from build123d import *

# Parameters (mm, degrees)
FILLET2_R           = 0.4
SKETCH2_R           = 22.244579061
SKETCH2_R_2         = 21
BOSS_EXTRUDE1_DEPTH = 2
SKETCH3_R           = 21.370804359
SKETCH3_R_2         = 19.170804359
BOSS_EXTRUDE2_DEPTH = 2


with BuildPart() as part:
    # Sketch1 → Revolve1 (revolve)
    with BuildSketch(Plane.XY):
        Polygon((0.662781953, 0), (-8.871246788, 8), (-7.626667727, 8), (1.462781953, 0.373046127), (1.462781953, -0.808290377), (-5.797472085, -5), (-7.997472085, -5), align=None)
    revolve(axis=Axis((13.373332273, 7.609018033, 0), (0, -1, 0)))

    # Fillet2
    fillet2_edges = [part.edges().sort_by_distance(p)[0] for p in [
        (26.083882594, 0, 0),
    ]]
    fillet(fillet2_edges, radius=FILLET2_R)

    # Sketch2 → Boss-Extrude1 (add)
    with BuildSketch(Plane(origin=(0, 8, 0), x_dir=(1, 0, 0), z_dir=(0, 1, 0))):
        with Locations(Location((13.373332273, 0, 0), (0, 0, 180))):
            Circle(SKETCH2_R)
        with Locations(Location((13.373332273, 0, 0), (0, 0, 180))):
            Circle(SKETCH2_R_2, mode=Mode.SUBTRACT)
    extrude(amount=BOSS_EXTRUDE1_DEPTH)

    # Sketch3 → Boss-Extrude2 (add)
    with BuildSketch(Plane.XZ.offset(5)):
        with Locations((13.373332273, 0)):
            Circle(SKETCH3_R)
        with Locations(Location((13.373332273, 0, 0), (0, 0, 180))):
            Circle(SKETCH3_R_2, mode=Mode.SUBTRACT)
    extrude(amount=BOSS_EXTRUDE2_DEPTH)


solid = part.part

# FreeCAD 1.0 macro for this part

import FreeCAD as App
import Part
import Sketcher
from FreeCAD import Vector
Q = App.Units.Quantity


def edges_at(feature, points):
    """Names of the edges that pass closest to the given points."""
    edges = feature.Shape.Edges
    near = lambda p: min(range(len(edges)), key=lambda i: edges[i].distToShape(Part.Vertex(*p))[0])
    return sorted({f"Edge{near(p) + 1}" for p in points})


def add_polygon(sketch, points):
    """Adds a closed chain of lines whose ends are joined by coincident constraints."""
    first, n = sketch.GeometryCount, len(points)
    for a, b in zip(points, points[1:] + points[:1]):
        sketch.addGeometry(Part.LineSegment(App.Vector(*a, 0), App.Vector(*b, 0)), False)
    for i in range(n):
        sketch.addConstraint(Sketcher.Constraint("Coincident", first + i, 2, first + (i + 1) % n, 1))

doc = App.newDocument("Part")
body = doc.addObject("PartDesign::Body", "Body")

# Sketch on XY plane
sketch1 = body.newObject("Sketcher::SketchObject", "Sketch")
sketch1.AttachmentSupport = (doc.getObject("XY_Plane"), [""])
sketch1.MapMode = "FlatFace"
add_polygon(sketch1, [(-8.9, 8), (0.7, 0), (-8, -5), (-5.8, -5), (1.5, -0.8), (1.5, 0.4), (-7.6, 8)])  # lines 0-6
sketch1.addGeometry(Part.LineSegment(Vector(13.4, 8, 0), Vector(13.4, -5, 0)), True)  # axis
sketch1.addConstraint(Sketcher.Constraint("Horizontal", 2))
sketch1.addConstraint(Sketcher.Constraint("Vertical", 4))
sketch1.addConstraint(Sketcher.Constraint("Horizontal", 6))
sketch1.addConstraint(Sketcher.Constraint("Vertical", 7))
sketch1.addConstraint(Sketcher.Constraint("PointOnObject", 0, 2, -1))
sketch1.addConstraint(Sketcher.Constraint("Parallel", 1, 3))
sketch1.addConstraint(Sketcher.Constraint("Parallel", 0, 5))
sketch1.addConstraint(Sketcher.Constraint("Horizontal", 6, 2, 7, 1))
sketch1.addConstraint(Sketcher.Constraint("Horizontal", 2, 2, 7, 2))
sketch1.addConstraint(Sketcher.Constraint("DistanceY", 7, 2, 7, 1, 13.0))
sketch1.addConstraint(Sketcher.Constraint("Angle", 0, Q("-40 deg")))
sketch1.addConstraint(Sketcher.Constraint("Angle", 1, Q("-150 deg")))
sketch1.addConstraint(Sketcher.Constraint("Distance", 1, 10.0))
sketch1.addConstraint(Sketcher.Constraint("DistanceX", 2, 1, 2, 2, 2.2))
sketch1.addConstraint(Sketcher.Constraint("DistanceX", 5, 2, 7, 1, 21.0))
sketch1.addConstraint(Sketcher.Constraint("DistanceX", 0, 2, 3, 2, 0.8))
sketch1.addConstraint(Sketcher.Constraint("DistanceX", 6, 2, 6, 1, 1.244579))
sketch1.addConstraint(Sketcher.Constraint("DistanceX", -1, 1, 0, 2, 0.662782))
revolution = body.newObject("PartDesign::Revolution", "Revolution")
revolution.Profile = sketch1
revolution.ReferenceAxis = (sketch1, ["Axis0"])
revolution.Angle = 360
doc.recompute()

fillet = body.newObject("PartDesign::Fillet", "Fillet")
fillet.Base = (revolution, edges_at(revolution, [(26.084, 0, 0)]))
fillet.Radius = 0.4

# Sketch on XZ plane
sketch2 = body.newObject("Sketcher::SketchObject", "Sketch001")
sketch2.AttachmentSupport = (doc.getObject("XZ_Plane"), [""])
sketch2.MapMode = "FlatFace"
sketch2.AttachmentOffset = App.Placement(Vector(0, 0, -8), App.Rotation())
sketch2.addGeometry(Part.Circle(Vector(13, 0, 0), Vector(0, 0, 1), 22), False)
sketch2.addGeometry(Part.Circle(Vector(13, 0, 0), Vector(0, 0, 1), 21), False)
sketch2.addConstraint(Sketcher.Constraint("Coincident", 1, 3, 0, 3))
sketch2.addConstraint(Sketcher.Constraint("PointOnObject", 0, 3, -1))
sketch2.addConstraint(Sketcher.Constraint("Diameter", 1, 42.0))
sketch2.addConstraint(Sketcher.Constraint("Diameter", 0, 44.489158))
sketch2.addConstraint(Sketcher.Constraint("DistanceX", -1, 1, 0, 3, 13.373332))
pad1 = body.newObject("PartDesign::Pad", "Pad")
pad1.Profile = sketch2
pad1.Length = 2
pad1.Reversed = True

# Sketch on XZ plane
sketch3 = body.newObject("Sketcher::SketchObject", "Sketch002")
sketch3.AttachmentSupport = (doc.getObject("XZ_Plane"), [""])
sketch3.MapMode = "FlatFace"
sketch3.AttachmentOffset = App.Placement(Vector(0, 0, 5), App.Rotation())
sketch3.addGeometry(Part.Circle(Vector(13, 0, 0), Vector(0, 0, 1), 21), False)
sketch3.addGeometry(Part.Circle(Vector(13, 0, 0), Vector(0, 0, 1), 19), False)
sketch3.addConstraint(Sketcher.Constraint("Coincident", 1, 3, 0, 3))
sketch3.addConstraint(Sketcher.Constraint("PointOnObject", 0, 3, -1))
sketch3.addConstraint(Sketcher.Constraint("Diameter", 0, 42.741609))
sketch3.addConstraint(Sketcher.Constraint("Diameter", 1, 38.341609))
sketch3.addConstraint(Sketcher.Constraint("DistanceX", -1, 1, 0, 3, 13.373332))
pad2 = body.newObject("PartDesign::Pad", "Pad001")
pad2.Profile = sketch3
pad2.Length = 2

doc.recompute()
